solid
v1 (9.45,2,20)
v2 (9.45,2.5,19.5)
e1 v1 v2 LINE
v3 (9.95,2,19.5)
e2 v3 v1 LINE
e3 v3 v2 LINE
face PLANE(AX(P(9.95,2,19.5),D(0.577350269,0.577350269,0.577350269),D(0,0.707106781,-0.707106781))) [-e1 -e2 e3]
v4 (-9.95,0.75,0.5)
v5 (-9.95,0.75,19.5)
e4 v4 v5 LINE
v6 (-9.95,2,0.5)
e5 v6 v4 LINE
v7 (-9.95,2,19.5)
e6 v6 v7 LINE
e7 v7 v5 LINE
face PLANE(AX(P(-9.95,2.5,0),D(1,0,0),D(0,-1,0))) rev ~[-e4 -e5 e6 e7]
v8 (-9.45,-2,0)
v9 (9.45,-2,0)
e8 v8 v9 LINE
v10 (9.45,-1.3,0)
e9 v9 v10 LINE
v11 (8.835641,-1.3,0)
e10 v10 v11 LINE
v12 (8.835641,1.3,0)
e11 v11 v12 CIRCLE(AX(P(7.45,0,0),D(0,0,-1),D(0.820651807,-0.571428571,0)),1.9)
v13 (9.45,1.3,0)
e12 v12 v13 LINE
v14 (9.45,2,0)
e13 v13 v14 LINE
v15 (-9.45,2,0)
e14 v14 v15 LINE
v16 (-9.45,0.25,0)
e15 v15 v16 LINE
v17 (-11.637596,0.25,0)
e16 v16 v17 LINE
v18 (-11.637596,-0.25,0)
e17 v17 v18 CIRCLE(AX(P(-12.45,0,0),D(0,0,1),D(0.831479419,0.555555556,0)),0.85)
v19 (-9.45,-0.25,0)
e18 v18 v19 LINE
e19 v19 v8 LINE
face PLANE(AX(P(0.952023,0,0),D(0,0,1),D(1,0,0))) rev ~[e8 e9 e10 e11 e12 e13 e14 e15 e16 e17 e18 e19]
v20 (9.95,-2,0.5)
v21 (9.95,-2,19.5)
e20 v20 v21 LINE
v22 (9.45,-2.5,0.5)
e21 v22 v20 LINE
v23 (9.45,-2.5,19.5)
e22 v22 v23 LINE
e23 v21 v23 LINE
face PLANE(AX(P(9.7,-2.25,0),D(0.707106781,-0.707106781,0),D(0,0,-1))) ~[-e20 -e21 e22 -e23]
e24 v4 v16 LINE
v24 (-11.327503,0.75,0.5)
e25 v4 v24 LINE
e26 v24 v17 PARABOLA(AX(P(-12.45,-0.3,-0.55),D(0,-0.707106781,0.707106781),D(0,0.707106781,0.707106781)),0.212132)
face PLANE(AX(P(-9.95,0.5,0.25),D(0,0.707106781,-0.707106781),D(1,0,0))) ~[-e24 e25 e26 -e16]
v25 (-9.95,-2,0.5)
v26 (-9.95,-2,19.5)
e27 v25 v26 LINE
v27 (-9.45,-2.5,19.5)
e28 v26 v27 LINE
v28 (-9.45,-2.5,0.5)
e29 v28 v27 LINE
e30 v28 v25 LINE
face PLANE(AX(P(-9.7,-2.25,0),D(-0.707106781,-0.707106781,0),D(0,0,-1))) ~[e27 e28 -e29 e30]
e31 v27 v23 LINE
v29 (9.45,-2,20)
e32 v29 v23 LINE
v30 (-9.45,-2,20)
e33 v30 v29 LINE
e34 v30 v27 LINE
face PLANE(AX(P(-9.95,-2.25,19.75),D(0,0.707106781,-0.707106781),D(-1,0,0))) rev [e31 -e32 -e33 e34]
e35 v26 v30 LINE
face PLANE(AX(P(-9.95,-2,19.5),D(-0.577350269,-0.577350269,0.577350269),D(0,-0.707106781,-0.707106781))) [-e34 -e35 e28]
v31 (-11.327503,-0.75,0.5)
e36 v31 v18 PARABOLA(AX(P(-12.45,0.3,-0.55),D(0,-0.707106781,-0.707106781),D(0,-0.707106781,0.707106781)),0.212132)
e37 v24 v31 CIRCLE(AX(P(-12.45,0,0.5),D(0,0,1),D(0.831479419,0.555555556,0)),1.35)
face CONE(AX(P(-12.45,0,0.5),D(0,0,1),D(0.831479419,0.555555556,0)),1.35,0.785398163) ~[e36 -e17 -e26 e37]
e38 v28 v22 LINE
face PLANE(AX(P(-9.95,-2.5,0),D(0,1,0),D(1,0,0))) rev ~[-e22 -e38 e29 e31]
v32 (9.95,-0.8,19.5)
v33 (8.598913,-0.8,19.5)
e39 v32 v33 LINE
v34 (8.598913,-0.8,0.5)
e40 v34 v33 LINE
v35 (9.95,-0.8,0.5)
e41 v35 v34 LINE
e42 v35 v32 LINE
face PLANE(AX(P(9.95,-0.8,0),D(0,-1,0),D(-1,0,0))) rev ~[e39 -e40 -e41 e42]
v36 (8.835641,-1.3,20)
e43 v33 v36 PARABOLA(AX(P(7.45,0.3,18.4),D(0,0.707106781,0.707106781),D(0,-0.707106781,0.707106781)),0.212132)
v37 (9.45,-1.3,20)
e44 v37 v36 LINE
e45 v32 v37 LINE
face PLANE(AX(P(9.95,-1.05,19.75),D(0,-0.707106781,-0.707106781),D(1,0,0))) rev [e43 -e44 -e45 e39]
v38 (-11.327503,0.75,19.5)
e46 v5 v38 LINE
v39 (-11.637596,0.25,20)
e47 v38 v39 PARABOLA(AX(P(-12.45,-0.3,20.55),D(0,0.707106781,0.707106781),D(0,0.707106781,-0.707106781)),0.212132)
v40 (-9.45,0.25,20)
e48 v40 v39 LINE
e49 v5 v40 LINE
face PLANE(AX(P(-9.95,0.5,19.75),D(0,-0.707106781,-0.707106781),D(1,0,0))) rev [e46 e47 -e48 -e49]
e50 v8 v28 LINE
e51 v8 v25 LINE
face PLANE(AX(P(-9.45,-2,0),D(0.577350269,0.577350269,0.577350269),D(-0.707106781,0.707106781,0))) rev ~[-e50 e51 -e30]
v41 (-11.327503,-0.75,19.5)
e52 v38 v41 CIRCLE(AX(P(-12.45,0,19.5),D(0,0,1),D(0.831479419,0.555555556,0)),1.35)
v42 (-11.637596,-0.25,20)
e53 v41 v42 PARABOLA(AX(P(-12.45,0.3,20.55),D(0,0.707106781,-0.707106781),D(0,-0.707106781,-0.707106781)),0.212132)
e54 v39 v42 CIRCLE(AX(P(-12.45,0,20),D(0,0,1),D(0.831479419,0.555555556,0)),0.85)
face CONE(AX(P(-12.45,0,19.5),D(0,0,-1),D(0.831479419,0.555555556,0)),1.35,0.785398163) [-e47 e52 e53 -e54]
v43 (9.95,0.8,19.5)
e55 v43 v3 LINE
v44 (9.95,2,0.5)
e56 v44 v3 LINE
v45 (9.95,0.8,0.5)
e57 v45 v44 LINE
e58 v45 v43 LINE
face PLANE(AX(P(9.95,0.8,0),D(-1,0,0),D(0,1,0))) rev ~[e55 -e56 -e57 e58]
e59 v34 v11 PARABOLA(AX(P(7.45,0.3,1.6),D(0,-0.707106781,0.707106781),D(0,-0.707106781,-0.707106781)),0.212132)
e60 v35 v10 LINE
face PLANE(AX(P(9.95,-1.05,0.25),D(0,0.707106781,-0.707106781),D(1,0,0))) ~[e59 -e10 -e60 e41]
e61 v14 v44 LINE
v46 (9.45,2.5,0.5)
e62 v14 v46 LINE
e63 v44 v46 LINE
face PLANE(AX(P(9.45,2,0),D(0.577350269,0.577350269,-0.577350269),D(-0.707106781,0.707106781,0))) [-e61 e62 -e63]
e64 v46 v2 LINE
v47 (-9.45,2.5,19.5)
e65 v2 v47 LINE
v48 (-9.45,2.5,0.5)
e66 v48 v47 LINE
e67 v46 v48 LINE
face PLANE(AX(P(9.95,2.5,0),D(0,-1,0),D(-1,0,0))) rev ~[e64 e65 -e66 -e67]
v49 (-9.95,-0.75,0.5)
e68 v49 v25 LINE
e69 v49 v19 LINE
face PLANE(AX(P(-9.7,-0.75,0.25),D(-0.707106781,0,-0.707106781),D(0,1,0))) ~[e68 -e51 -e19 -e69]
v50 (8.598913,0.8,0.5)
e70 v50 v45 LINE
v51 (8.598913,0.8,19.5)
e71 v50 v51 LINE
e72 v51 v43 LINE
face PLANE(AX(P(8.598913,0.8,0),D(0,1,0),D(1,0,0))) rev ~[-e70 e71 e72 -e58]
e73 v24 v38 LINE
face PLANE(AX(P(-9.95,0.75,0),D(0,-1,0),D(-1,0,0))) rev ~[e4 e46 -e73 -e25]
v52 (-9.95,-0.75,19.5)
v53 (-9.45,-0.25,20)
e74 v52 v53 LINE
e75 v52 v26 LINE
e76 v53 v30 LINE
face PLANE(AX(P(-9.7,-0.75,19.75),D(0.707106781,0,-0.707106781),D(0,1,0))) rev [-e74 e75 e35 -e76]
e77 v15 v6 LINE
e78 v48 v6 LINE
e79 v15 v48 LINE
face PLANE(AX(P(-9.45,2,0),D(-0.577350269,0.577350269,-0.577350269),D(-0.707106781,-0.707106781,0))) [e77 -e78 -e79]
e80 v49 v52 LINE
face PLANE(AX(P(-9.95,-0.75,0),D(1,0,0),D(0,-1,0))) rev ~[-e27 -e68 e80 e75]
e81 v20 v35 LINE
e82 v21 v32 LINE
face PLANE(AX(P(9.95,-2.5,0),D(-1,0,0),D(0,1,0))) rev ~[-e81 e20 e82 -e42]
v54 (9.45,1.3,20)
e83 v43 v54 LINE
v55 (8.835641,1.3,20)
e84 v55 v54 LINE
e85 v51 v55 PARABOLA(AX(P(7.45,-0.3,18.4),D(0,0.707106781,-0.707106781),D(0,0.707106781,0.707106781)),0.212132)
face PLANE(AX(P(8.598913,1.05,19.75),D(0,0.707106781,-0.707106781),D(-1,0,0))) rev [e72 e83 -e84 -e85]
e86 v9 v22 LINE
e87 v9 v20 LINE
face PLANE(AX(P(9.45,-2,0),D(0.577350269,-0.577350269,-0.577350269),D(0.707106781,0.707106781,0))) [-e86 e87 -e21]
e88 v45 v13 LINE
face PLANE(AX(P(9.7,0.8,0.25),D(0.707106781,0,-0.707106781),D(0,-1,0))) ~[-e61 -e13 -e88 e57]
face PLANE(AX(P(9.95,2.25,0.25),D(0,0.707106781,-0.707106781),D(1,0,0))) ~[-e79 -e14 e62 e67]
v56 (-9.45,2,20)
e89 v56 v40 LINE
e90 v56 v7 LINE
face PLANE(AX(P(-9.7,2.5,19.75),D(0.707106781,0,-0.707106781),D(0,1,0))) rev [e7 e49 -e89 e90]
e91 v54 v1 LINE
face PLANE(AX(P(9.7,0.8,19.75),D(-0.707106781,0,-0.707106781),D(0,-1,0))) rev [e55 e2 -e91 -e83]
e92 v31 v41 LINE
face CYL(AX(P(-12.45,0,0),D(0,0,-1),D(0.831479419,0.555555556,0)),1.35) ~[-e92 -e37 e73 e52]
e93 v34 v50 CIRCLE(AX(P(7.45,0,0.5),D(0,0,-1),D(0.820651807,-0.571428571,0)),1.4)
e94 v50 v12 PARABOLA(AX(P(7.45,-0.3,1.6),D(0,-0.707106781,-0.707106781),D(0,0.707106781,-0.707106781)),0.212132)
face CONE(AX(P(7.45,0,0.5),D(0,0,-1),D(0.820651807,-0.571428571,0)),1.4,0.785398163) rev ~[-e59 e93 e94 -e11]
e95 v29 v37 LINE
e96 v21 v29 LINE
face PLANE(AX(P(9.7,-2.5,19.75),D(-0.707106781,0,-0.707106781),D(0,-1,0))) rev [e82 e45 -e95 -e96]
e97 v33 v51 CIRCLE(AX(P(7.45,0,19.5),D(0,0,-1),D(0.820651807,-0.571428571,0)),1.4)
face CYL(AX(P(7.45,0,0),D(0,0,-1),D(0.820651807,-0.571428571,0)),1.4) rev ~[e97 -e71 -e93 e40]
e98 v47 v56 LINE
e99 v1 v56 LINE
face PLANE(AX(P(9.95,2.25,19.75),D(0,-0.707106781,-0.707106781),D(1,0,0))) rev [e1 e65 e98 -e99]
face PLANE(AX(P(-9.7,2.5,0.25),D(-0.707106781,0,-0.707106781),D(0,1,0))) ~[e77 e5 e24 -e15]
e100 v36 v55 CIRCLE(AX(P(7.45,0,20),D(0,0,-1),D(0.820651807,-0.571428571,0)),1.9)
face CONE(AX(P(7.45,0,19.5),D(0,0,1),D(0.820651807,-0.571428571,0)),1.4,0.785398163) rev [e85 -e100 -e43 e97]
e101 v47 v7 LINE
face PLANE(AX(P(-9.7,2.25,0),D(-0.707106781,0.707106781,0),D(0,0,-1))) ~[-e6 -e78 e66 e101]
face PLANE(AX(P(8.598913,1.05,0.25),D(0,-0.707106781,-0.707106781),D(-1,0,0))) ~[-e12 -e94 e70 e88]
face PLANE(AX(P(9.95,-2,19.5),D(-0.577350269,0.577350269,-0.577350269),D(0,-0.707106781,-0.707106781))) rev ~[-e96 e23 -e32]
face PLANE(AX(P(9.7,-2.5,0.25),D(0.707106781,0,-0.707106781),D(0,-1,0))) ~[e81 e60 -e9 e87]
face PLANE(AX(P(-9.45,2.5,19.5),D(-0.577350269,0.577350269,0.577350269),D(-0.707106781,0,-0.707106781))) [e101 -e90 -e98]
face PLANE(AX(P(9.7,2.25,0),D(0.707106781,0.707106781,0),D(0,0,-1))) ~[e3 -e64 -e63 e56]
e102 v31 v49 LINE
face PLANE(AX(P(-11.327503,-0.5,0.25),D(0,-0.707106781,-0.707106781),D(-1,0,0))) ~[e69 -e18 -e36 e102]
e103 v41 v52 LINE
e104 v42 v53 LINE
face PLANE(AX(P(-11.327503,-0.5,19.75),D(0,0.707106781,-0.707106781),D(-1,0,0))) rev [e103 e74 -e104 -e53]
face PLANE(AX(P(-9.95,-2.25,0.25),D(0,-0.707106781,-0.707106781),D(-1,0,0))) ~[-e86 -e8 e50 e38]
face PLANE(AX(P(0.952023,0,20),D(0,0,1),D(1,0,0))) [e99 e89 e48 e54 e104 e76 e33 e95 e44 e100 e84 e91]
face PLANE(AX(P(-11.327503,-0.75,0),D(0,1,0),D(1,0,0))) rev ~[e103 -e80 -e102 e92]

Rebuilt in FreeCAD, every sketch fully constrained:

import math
import FreeCAD as App
import Part
import Sketcher
Q = App.Units.Quantity


def edges_at(feature, points):
    """Names of the edges that pass closest to the given points."""
    edges = feature.Shape.Edges
    near = lambda p: min(range(len(edges)), key=lambda i: edges[i].distToShape(Part.Vertex(*p))[0])
    return sorted({f"Edge{near(p) + 1}" for p in points})

doc = App.newDocument("Part")
body = doc.addObject("PartDesign::Body", "Body")

# Sketch on XY plane
sketch1 = body.newObject("Sketcher::SketchObject", "Sketch")
sketch1.AttachmentSupport = (doc.getObject("XY_Plane"), [""])
sketch1.MapMode = "FlatFace"
sketch1.addGeometry(Part.LineSegment(App.Vector(-9.9, 0.8, 0), App.Vector(-11.3, 0.8, 0)), False)
sketch1.addGeometry(Part.ArcOfCircle(Part.Circle(App.Vector(-12.4, 0, 0), App.Vector(0, 0, 1), 1.4), math.radians(34), math.radians(326)), False)
sketch1.addGeometry(Part.LineSegment(App.Vector(-11.3, -0.8, 0), App.Vector(-9.9, -0.8, 0)), False)
sketch1.addGeometry(Part.LineSegment(App.Vector(-9.9, -0.8, 0), App.Vector(-9.9, -2.5, 0)), False)
sketch1.addGeometry(Part.LineSegment(App.Vector(-9.9, -2.5, 0), App.Vector(9.9, -2.5, 0)), False)
sketch1.addGeometry(Part.LineSegment(App.Vector(9.9, -2.5, 0), App.Vector(9.9, -0.8, 0)), False)
sketch1.addGeometry(Part.LineSegment(App.Vector(9.9, -0.8, 0), App.Vector(8.6, -0.8, 0)), False)
sketch1.addGeometry(Part.ArcOfCircle(Part.Circle(App.Vector(7.5, 0, 0), App.Vector(0, 0, 1), 1.4), math.radians(35), math.radians(325)), False)
sketch1.addGeometry(Part.LineSegment(App.Vector(8.6, 0.8, 0), App.Vector(9.9, 0.8, 0)), False)
sketch1.addGeometry(Part.LineSegment(App.Vector(9.9, 0.8, 0), App.Vector(9.9, 2.5, 0)), False)
sketch1.addGeometry(Part.LineSegment(App.Vector(9.9, 2.5, 0), App.Vector(-9.9, 2.5, 0)), False)
sketch1.addGeometry(Part.LineSegment(App.Vector(-9.9, 2.5, 0), App.Vector(-9.9, 0.8, 0)), False)
sketch1.addConstraint(Sketcher.Constraint("Coincident", 0, 2, 1, 1))
sketch1.addConstraint(Sketcher.Constraint("Coincident", 1, 2, 2, 1))
sketch1.addConstraint(Sketcher.Constraint("Coincident", 2, 2, 3, 1))
sketch1.addConstraint(Sketcher.Constraint("Coincident", 3, 2, 4, 1))
sketch1.addConstraint(Sketcher.Constraint("Coincident", 4, 2, 5, 1))
sketch1.addConstraint(Sketcher.Constraint("Coincident", 5, 2, 6, 1))
sketch1.addConstraint(Sketcher.Constraint("Coincident", 6, 2, 7, 2))
sketch1.addConstraint(Sketcher.Constraint("Coincident", 7, 1, 8, 1))
sketch1.addConstraint(Sketcher.Constraint("Coincident", 8, 2, 9, 1))
sketch1.addConstraint(Sketcher.Constraint("Coincident", 9, 2, 10, 1))
sketch1.addConstraint(Sketcher.Constraint("Coincident", 10, 2, 11, 1))
sketch1.addConstraint(Sketcher.Constraint("Coincident", 11, 2, 0, 1))
sketch1.addConstraint(Sketcher.Constraint("Horizontal", 0))
sketch1.addConstraint(Sketcher.Constraint("Horizontal", 2))
sketch1.addConstraint(Sketcher.Constraint("Vertical", 3))
sketch1.addConstraint(Sketcher.Constraint("Horizontal", 4))
sketch1.addConstraint(Sketcher.Constraint("Vertical", 5))
sketch1.addConstraint(Sketcher.Constraint("Horizontal", 6))
sketch1.addConstraint(Sketcher.Constraint("Horizontal", 8))
sketch1.addConstraint(Sketcher.Constraint("Vertical", 9))
sketch1.addConstraint(Sketcher.Constraint("Horizontal", 10))
sketch1.addConstraint(Sketcher.Constraint("Vertical", 11))
sketch1.addConstraint(Sketcher.Constraint("Symmetric", 3, 2, 9, 2, -1, 1))
sketch1.addConstraint(Sketcher.Constraint("Symmetric", 0, 2, 1, 2, -1))
sketch1.addConstraint(Sketcher.Constraint("Symmetric", 6, 2, 7, 1, -1))
sketch1.addConstraint(Sketcher.Constraint("Vertical", 5, 2, 8, 2))
sketch1.addConstraint(Sketcher.Constraint("Vertical", 3, 2, 10, 2))
sketch1.addConstraint(Sketcher.Constraint("Radius", 7, Q("1.4 mm")))
sketch1.addConstraint(Sketcher.Constraint("Radius", 1, Q("1.35 mm")))
sketch1.addConstraint(Sketcher.Constraint("DistanceX", 4, 1, 4, 2, Q("19.9 mm")))
sketch1.addConstraint(Sketcher.Constraint("DistanceY", 5, 1, 5, 2, Q("1.7 mm")))
sketch1.addConstraint(Sketcher.Constraint("DistanceY", 3, 2, 10, 2, Q("5 mm")))
sketch1.addConstraint(Sketcher.Constraint("DistanceY", 3, 2, 3, 1, Q("1.75 mm")))
sketch1.addConstraint(Sketcher.Constraint("DistanceX", 1, 3, 7, 3, Q("19.9 mm")))
sketch1.addConstraint(Sketcher.Constraint("DistanceX", 1, 3, 2, 2, Q("2.5 mm")))
pad1 = body.newObject("PartDesign::Pad", "Pad")
pad1.Profile = sketch1
pad1.Length = 20
doc.recompute()

chamfer = body.newObject("PartDesign::Chamfer", "Chamfer")
chamfer.Base = (pad1, edges_at(pad1, [
    (0, -2.5, 20),
    (-9.95, -1.625, 20),
    (-10.639, -0.75, 20),
    (-13.8, 0, 20),
    (-10.639, 0.75, 20),
    (-9.95, 1.625, 20),
    (0, 2.5, 20),
    (9.95, 1.65, 20),
    (9.274, 0.8, 20),
    (6.05, 0, 20),
    (9.274, -0.8, 20),
    (9.95, -1.65, 20),
    (9.95, -2.5, 10),
    (9.95, 2.5, 10),
    (-9.95, -2.5, 10),
    (-9.95, 2.5, 10),
    (0, -2.5, 0),
    (9.95, -1.65, 0),
    (9.274, -0.8, 0),
    (6.05, 0, 0),
    (9.274, 0.8, 0),
    (9.95, 1.65, 0),
    (0, 2.5, 0),
    (-9.95, 1.625, 0),
    (-10.639, 0.75, 0),
    (-10.639, -0.75, 0),
    (-9.95, -1.625, 0),
    (-13.8, 0, 0),
]))
chamfer.Size = 0.5

doc.recompute()
